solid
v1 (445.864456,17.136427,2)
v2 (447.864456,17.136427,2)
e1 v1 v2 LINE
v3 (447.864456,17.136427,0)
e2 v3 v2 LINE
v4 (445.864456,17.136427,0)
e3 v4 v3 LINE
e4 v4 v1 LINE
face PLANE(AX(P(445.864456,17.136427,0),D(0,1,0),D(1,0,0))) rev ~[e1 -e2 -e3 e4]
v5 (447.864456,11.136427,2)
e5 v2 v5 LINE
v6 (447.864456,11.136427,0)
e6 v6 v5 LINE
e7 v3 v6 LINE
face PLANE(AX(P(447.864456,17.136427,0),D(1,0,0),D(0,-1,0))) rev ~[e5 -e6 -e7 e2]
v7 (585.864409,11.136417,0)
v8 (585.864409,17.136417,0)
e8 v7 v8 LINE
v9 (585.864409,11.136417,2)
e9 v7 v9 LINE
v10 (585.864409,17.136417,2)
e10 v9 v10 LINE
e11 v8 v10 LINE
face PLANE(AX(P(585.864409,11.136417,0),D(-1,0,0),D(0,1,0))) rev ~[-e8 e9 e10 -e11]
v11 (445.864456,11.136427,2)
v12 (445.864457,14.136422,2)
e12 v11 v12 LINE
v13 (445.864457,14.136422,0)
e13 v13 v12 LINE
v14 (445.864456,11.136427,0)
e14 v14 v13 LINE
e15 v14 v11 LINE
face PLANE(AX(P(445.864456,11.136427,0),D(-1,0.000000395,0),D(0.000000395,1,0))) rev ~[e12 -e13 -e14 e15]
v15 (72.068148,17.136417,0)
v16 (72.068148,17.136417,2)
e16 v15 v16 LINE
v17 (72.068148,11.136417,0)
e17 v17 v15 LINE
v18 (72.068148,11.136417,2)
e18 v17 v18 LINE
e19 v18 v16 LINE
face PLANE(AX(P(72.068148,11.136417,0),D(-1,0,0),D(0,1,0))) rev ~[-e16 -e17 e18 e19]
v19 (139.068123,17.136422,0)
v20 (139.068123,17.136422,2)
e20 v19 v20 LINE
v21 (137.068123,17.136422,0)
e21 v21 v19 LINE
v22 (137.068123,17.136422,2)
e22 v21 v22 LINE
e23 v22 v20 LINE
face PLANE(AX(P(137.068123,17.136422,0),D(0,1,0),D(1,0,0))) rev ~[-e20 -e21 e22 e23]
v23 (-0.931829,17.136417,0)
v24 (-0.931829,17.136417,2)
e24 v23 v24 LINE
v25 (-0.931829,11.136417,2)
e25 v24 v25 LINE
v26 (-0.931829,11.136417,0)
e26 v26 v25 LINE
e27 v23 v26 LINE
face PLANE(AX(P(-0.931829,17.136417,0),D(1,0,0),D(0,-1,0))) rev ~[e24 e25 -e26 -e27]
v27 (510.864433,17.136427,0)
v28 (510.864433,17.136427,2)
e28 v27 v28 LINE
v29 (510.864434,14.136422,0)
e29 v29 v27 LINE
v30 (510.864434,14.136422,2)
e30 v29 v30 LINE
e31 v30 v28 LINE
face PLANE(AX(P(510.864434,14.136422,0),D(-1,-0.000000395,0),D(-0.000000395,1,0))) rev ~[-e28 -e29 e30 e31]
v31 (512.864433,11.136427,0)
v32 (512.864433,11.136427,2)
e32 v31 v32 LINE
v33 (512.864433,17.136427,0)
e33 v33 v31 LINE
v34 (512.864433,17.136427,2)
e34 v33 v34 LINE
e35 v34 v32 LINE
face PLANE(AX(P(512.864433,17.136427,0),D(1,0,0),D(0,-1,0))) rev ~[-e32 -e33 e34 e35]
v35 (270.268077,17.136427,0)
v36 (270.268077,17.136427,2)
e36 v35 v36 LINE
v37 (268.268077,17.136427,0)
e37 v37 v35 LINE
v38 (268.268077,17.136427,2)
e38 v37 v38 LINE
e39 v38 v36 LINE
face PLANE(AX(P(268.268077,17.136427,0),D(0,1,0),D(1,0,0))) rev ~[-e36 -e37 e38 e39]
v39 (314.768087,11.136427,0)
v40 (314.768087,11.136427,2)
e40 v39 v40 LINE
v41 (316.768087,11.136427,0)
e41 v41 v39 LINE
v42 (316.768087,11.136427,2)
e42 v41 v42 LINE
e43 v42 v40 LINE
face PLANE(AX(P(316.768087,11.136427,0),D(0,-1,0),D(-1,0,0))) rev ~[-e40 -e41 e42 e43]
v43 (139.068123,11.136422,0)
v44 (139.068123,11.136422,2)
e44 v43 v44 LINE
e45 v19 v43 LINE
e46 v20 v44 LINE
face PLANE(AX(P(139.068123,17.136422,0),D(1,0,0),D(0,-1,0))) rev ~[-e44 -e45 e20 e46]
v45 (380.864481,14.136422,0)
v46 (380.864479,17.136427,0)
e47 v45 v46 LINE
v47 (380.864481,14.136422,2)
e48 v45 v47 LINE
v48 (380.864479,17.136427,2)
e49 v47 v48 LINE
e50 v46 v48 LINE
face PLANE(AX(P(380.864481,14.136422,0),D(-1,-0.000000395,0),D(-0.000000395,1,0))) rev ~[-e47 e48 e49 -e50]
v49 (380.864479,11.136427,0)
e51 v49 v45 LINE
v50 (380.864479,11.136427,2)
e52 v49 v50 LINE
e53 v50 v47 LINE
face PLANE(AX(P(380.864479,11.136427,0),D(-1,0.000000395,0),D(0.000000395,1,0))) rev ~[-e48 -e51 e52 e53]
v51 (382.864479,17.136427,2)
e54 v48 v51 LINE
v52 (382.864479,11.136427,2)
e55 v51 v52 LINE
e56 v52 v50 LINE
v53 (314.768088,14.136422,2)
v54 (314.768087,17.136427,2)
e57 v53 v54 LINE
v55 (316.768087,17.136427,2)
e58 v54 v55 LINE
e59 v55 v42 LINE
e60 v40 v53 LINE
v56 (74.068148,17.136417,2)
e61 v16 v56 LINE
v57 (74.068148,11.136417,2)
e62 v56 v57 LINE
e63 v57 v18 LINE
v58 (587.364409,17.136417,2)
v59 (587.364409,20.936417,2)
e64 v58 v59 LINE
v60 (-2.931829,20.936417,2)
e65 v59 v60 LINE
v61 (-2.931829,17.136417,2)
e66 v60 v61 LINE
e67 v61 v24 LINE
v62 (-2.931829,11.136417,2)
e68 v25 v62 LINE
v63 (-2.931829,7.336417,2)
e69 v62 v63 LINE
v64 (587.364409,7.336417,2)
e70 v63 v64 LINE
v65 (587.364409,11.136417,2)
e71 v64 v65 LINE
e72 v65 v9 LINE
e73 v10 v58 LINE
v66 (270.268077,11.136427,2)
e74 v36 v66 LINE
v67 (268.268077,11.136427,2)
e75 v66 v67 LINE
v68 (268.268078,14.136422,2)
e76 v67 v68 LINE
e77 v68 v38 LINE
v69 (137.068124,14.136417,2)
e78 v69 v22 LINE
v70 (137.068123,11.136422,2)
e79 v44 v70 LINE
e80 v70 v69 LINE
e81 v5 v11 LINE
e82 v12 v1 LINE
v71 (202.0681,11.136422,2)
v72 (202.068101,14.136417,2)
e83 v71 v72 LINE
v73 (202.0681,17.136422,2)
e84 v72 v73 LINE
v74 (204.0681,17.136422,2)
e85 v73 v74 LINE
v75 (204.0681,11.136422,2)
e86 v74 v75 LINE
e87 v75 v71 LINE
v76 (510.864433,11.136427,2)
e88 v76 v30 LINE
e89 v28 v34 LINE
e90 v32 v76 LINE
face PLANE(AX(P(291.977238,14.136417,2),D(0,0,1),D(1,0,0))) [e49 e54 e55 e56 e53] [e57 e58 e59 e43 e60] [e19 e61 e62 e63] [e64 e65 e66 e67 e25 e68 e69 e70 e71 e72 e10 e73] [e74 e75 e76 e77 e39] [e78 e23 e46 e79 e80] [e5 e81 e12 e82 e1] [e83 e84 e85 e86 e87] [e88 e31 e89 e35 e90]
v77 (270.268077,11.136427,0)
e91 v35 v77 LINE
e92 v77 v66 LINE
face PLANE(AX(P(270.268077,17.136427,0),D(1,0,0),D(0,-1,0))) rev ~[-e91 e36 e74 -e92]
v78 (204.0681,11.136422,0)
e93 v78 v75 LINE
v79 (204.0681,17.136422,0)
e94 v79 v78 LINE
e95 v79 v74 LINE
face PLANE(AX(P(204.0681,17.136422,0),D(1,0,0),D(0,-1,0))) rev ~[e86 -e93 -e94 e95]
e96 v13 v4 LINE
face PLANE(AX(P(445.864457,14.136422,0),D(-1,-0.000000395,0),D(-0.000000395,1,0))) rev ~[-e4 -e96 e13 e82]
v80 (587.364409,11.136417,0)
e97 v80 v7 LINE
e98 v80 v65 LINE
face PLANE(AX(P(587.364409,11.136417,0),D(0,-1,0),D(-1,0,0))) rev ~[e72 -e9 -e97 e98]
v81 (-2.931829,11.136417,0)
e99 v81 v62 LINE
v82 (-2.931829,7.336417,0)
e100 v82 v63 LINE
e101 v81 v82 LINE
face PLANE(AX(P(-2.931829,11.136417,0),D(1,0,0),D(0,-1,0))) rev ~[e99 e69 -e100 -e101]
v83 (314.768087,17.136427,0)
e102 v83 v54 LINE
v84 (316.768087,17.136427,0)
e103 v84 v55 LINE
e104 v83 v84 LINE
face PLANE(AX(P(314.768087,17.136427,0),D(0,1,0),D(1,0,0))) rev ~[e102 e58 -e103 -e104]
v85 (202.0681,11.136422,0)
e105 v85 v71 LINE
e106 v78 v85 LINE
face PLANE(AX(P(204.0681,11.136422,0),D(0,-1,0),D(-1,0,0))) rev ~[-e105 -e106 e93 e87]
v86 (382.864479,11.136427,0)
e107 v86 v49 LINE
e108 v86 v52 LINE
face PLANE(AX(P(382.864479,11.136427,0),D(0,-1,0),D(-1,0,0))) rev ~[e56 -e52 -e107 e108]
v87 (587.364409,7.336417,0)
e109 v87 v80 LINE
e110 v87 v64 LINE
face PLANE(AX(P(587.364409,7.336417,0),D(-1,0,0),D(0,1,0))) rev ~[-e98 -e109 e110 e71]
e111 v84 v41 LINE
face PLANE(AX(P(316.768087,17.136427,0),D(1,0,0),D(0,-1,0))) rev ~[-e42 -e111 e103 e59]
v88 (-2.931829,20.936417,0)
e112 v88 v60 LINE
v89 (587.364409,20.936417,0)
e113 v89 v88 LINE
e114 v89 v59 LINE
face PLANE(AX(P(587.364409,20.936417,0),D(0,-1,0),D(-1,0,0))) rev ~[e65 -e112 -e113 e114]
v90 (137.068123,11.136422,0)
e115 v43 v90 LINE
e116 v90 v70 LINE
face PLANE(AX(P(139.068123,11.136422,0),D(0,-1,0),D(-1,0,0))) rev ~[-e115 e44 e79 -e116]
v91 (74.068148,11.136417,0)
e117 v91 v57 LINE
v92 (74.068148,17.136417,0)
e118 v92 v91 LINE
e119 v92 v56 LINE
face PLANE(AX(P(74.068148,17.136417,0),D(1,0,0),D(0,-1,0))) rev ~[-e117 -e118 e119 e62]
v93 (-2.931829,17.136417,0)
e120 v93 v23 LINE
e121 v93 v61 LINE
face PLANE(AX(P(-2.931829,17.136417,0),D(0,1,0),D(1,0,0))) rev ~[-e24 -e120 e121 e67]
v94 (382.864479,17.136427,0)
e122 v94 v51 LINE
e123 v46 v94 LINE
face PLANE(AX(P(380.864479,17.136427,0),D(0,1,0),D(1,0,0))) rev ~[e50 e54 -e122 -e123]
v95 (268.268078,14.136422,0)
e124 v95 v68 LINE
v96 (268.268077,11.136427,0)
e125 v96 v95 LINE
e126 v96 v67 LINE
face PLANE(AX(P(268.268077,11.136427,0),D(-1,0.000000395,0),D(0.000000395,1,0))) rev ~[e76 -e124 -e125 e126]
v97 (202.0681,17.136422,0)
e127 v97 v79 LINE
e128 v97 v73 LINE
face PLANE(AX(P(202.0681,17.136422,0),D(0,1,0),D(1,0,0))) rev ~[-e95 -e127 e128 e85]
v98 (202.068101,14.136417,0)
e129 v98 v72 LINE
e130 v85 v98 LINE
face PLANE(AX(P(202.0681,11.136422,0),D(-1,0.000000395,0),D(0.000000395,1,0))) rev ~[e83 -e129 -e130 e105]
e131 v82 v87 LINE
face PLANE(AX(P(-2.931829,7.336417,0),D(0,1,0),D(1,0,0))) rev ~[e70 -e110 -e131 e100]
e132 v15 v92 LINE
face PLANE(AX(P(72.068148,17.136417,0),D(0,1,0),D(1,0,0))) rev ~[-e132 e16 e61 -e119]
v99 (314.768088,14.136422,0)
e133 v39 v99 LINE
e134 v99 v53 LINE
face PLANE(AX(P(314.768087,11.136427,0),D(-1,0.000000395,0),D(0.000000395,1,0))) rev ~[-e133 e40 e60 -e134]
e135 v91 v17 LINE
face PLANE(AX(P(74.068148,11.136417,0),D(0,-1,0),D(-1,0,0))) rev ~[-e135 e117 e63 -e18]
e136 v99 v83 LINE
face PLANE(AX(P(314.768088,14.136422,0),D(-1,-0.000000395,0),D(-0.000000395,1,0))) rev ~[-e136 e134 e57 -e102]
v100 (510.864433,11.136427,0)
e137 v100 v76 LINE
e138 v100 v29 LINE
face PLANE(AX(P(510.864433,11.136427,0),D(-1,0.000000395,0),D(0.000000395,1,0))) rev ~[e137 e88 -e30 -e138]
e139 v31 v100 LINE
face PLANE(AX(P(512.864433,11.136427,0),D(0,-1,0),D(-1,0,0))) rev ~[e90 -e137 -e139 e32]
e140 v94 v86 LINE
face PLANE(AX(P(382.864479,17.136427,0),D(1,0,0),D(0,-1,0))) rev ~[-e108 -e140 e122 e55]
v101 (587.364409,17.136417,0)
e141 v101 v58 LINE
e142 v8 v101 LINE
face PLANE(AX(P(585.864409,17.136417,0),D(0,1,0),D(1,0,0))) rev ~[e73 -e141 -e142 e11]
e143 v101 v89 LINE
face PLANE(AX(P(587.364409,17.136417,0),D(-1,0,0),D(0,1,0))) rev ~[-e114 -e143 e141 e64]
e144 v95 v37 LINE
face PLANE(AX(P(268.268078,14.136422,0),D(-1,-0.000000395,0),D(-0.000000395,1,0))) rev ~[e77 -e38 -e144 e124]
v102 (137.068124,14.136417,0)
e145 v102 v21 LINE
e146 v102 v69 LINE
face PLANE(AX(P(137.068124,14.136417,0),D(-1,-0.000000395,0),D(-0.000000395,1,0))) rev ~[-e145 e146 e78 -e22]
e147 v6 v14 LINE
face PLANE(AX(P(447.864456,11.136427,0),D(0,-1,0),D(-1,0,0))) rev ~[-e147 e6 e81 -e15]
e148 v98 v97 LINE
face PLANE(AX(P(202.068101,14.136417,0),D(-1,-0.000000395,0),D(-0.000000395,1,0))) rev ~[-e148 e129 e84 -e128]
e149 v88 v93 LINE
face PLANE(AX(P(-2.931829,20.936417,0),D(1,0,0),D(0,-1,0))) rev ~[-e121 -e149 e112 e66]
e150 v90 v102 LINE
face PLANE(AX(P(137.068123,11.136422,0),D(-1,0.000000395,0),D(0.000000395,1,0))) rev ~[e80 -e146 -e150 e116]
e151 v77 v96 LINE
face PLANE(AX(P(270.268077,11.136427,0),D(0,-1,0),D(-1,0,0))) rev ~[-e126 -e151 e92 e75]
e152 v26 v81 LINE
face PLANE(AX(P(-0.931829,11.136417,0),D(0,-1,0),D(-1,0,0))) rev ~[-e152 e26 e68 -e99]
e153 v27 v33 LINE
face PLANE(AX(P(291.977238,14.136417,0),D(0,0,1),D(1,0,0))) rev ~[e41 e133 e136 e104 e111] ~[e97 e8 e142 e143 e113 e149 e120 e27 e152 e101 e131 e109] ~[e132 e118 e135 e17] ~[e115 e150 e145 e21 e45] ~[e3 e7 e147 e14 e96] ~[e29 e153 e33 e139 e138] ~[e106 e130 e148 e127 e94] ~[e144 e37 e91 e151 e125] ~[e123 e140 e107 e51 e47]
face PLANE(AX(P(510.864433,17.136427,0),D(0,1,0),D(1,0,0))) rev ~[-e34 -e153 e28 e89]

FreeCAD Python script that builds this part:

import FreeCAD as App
import Part
import Sketcher
from FreeCAD import Vector
Q = App.Units.Quantity


def add_polygon(sketch, points):
    """Adds a closed chain of lines whose ends are joined by coincident constraints."""
    first, n = sketch.GeometryCount, len(points)
    for a, b in zip(points, points[1:] + points[:1]):
        sketch.addGeometry(Part.LineSegment(App.Vector(*a, 0), App.Vector(*b, 0)), False)
    for i in range(n):
        sketch.addConstraint(Sketcher.Constraint("Coincident", first + i, 2, first + (i + 1) % n, 1))

doc = App.newDocument("Part")
params = doc.addObject("Spreadsheet::Sheet", "Params")
for row, (alias, value) in enumerate([
    ("sketch1_width", "2 mm"),
    ("sketch1_height", "6 mm"),
    ("sketch1_width2", "1.5 mm"),
    ("sketch1_height2", "3.8 mm"),
    ("pad1_length", "2 mm"),
], start=1):
    params.set(f"A{row}", alias)
    params.set(f"B{row}", "=" + value)
    params.setAlias(f"B{row}", alias)

body = doc.addObject("PartDesign::Body", "Body")

# Sketch on XY plane
sketch1 = body.newObject("Sketcher::SketchObject", "Sketch")
sketch1.AttachmentSupport = (doc.getObject("XY_Plane"), [""])
sketch1.MapMode = "FlatFace"
add_polygon(sketch1, [(587.364409, 20.936417), (-2.931829, 20.936417), (-2.931829, 17.136417), (-0.931829, 17.136417), (-0.931829, 11.136417), (-2.931829, 11.136417), (-2.931829, 7.336417), (587.364409, 7.336417), (587.364409, 11.136417), (585.864409, 11.136417), (585.864409, 17.136417), (587.364409, 17.136417)])  # lines 0-11
add_polygon(sketch1, [(72.068148, 11.136417), (72.068148, 17.136417), (74.068148, 17.136417), (74.068148, 11.136417)])  # lines 12-15
add_polygon(sketch1, [(137.068123, 11.136422), (137.068124, 14.136417), (137.068123, 17.136422), (139.068123, 17.136422), (139.068123, 11.136422)])  # lines 16-20
add_polygon(sketch1, [(202.0681, 11.136422), (202.068101, 14.136417), (202.0681, 17.136422), (204.0681, 17.136422), (204.0681, 11.136422)])  # lines 21-25
add_polygon(sketch1, [(268.268077, 11.136427), (268.268078, 14.136422), (268.268077, 17.136427), (270.268077, 17.136427), (270.268077, 11.136427)])  # lines 26-30
add_polygon(sketch1, [(314.768087, 11.136427), (314.768088, 14.136422), (314.768087, 17.136427), (316.768087, 17.136427), (316.768087, 11.136427)])  # lines 31-35
add_polygon(sketch1, [(380.864479, 11.136427), (380.864481, 14.136422), (380.864479, 17.136427), (382.864479, 17.136427), (382.864479, 11.136427)])  # lines 36-40
add_polygon(sketch1, [(445.864456, 11.136427), (445.864457, 14.136422), (445.864456, 17.136427), (447.864456, 17.136427), (447.864456, 11.136427)])  # lines 41-45
add_polygon(sketch1, [(510.864433, 11.136427), (510.864434, 14.136422), (510.864433, 17.136427), (512.864433, 17.136427), (512.864433, 11.136427)])  # lines 46-50
sketch1.addConstraint([
    Sketcher.Constraint("Horizontal", 0),
    Sketcher.Constraint("Vertical", 1),
    Sketcher.Constraint("Horizontal", 2),
    Sketcher.Constraint("Vertical", 3),
    Sketcher.Constraint("Horizontal", 4),
    Sketcher.Constraint("Vertical", 5),
    Sketcher.Constraint("Horizontal", 6),
    Sketcher.Constraint("Vertical", 7),
    Sketcher.Constraint("Horizontal", 8),
    Sketcher.Constraint("Vertical", 9),
    Sketcher.Constraint("Horizontal", 10),
    Sketcher.Constraint("Vertical", 11),
    Sketcher.Constraint("Vertical", 12),
    Sketcher.Constraint("Horizontal", 13),
    Sketcher.Constraint("Vertical", 14),
    Sketcher.Constraint("Horizontal", 15),
    Sketcher.Constraint("Vertical", 16),
    Sketcher.Constraint("Vertical", 17),
    Sketcher.Constraint("Horizontal", 18),
    Sketcher.Constraint("Vertical", 19),
    Sketcher.Constraint("Horizontal", 20),
    Sketcher.Constraint("Vertical", 21),
    Sketcher.Constraint("Vertical", 22),
    Sketcher.Constraint("Horizontal", 23),
    Sketcher.Constraint("Vertical", 24),
    Sketcher.Constraint("Horizontal", 25),
    Sketcher.Constraint("Vertical", 26),
    Sketcher.Constraint("Vertical", 27),
    Sketcher.Constraint("Horizontal", 28),
    Sketcher.Constraint("Vertical", 29),
    Sketcher.Constraint("Horizontal", 30),
    Sketcher.Constraint("Vertical", 31),
    Sketcher.Constraint("Vertical", 32),
    Sketcher.Constraint("Horizontal", 33),
    Sketcher.Constraint("Vertical", 34),
    Sketcher.Constraint("Horizontal", 35),
    Sketcher.Constraint("Vertical", 36),
    Sketcher.Constraint("Vertical", 37),
    Sketcher.Constraint("Horizontal", 38),
    Sketcher.Constraint("Vertical", 39),
    Sketcher.Constraint("Horizontal", 40),
    Sketcher.Constraint("Vertical", 41),
    Sketcher.Constraint("Vertical", 42),
    Sketcher.Constraint("Horizontal", 43),
    Sketcher.Constraint("Vertical", 44),
    Sketcher.Constraint("Horizontal", 45),
    Sketcher.Constraint("Vertical", 46),
    Sketcher.Constraint("Vertical", 47),
    Sketcher.Constraint("Horizontal", 48),
    Sketcher.Constraint("Vertical", 49),
    Sketcher.Constraint("Horizontal", 50),
    Sketcher.Constraint("Horizontal", 4, 2, 7, 2),
    Sketcher.Constraint("Horizontal", 2, 2, 9, 2),
    Sketcher.Constraint("Horizontal", 10, 2, 12, 2),
    Sketcher.Constraint("Horizontal", 8, 2, 14, 2),
    Sketcher.Constraint("Horizontal", 16, 2, 21, 2),
    Sketcher.Constraint("Horizontal", 18, 2, 22, 2),
    Sketcher.Constraint("Horizontal", 20, 2, 24, 2),
    Sketcher.Constraint("Horizontal", 26, 2, 31, 2),
    Sketcher.Constraint("Horizontal", 28, 2, 32, 2),
    Sketcher.Constraint("Horizontal", 30, 2, 34, 2),
    Sketcher.Constraint("Horizontal", 31, 2, 36, 2),
    Sketcher.Constraint("Horizontal", 33, 2, 37, 2),
    Sketcher.Constraint("Horizontal", 35, 2, 39, 2),
    Sketcher.Constraint("Horizontal", 36, 2, 41, 2),
    Sketcher.Constraint("Horizontal", 38, 2, 42, 2),
    Sketcher.Constraint("Horizontal", 40, 2, 44, 2),
    Sketcher.Constraint("Horizontal", 41, 2, 46, 2),
    Sketcher.Constraint("Horizontal", 43, 2, 47, 2),
    Sketcher.Constraint("Horizontal", 45, 2, 49, 2),
    Sketcher.Constraint("Vertical", 1, 2, 4, 2),
    Sketcher.Constraint("Vertical", 7, 2, 10, 2),
    Sketcher.Constraint("Equal", 4, 13),
    Sketcher.Constraint("Equal", 15, 18),
    Sketcher.Constraint("Equal", 20, 23),
    Sketcher.Constraint("Equal", 25, 28),
    Sketcher.Constraint("Equal", 30, 33),
    Sketcher.Constraint("Equal", 35, 38),
    Sketcher.Constraint("Equal", 40, 43),
    Sketcher.Constraint("Equal", 45, 48),
    Sketcher.Constraint("Equal", 1, 5),
    Sketcher.Constraint("Equal", 14, 19),
    Sketcher.Constraint("Equal", 21, 26),
    Sketcher.Constraint("Equal", 22, 27),
    Sketcher.Constraint("DistanceX", 2, 1, 2, 2, Q("2 mm")),
    Sketcher.Constraint("DistanceY", 3, 2, 3, 1, Q("6 mm")),
    Sketcher.Constraint("DistanceX", 8, 2, 8, 1, Q("1.5 mm")),
    Sketcher.Constraint("DistanceY", 1, 2, 1, 1, Q("3.8 mm")),
    Sketcher.Constraint("DistanceY", 16, 2, 13, 2, Q("3 mm")),
    Sketcher.Constraint("DistanceY", 24, 2, 26, 2, Q("2.999999 mm")),
    Sketcher.Constraint("DistanceX", 0, 2, 0, 1, Q("590.296238 mm")),
    Sketcher.Constraint("DistanceX", -1, 1, 21, 2, Q("202.068101 mm")),
    Sketcher.Constraint("DistanceY", 16, 1, 16, 2, Q("2.999994 mm")),
    Sketcher.Constraint("DistanceX", 0, 2, -1, 1, Q("2.931829 mm")),
    Sketcher.Constraint("DistanceX", -1, 1, 26, 2, Q("268.268078 mm")),
    Sketcher.Constraint("DistanceY", -1, 1, 26, 2, Q("14.136422 mm")),
    Sketcher.Constraint("DistanceX", -1, 1, 31, 2, Q("314.768088 mm")),
    Sketcher.Constraint("DistanceX", -1, 1, 36, 2, Q("380.864481 mm")),
    Sketcher.Constraint("DistanceX", 19, 2, 21, 2, Q("62.999978 mm")),
    Sketcher.Constraint("DistanceX", 39, 2, 41, 2, Q("62.999978 mm")),
    Sketcher.Constraint("DistanceX", 44, 2, 46, 2, Q("62.999978 mm")),
    Sketcher.Constraint("DistanceX", -1, 1, 12, 2, Q("72.068148 mm")),
])
sketch1.setExpression("Constraints[135]", "Params.sketch1_width")
sketch1.setExpression("Constraints[136]", "Params.sketch1_height")
sketch1.setExpression("Constraints[137]", "Params.sketch1_width2")
sketch1.setExpression("Constraints[138]", "Params.sketch1_height2")
pad1 = body.newObject("PartDesign::Pad", "Pad")
pad1.Profile = sketch1
pad1.setExpression("Length", "Params.pad1_length")

doc.recompute()
